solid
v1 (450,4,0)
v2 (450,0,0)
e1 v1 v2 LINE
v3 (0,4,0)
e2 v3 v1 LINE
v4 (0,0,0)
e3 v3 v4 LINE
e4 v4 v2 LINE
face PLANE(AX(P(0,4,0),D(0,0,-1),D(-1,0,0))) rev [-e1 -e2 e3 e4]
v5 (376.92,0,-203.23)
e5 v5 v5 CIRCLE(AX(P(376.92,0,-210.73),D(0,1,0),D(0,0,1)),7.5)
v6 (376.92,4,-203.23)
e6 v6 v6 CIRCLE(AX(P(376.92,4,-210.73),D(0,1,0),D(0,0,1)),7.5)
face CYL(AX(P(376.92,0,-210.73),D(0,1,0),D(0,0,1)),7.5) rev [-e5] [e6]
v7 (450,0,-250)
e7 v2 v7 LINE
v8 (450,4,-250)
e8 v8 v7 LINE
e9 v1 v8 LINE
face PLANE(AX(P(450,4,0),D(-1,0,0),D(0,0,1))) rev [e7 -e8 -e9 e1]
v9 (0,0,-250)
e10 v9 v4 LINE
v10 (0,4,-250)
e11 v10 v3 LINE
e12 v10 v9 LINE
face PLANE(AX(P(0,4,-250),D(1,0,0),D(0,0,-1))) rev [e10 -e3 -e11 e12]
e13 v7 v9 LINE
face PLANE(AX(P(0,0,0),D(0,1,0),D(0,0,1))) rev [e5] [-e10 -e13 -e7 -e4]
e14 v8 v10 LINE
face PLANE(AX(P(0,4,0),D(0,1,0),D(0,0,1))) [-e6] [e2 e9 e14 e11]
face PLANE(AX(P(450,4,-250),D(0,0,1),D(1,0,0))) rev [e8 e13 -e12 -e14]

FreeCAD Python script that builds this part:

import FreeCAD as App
import Part
import Sketcher

V = App.Vector
Q = App.Units.Quantity

doc = App.newDocument("Part")
body = doc.addObject("PartDesign::Body", "Body")

# Sketch on XZ plane
sketch1 = body.newObject("Sketcher::SketchObject", "Sketch")
sketch1.AttachmentSupport = (doc.getObject("XZ_Plane"), [""])
sketch1.MapMode = "FlatFace"
sketch1.addGeometry([
    Part.LineSegment(V(0, -250, 0), V(0, 0, 0)),
    Part.LineSegment(V(0, 0, 0), V(450, 0, 0)),
    Part.LineSegment(V(450, 0, 0), V(450, -250, 0)),
    Part.LineSegment(V(450, -250, 0), V(0, -250, 0)),
], False)
sketch1.addConstraint([
    Sketcher.Constraint("Coincident", 0, 2, 1, 1),
    Sketcher.Constraint("Coincident", 1, 2, 2, 1),
    Sketcher.Constraint("Coincident", 2, 2, 3, 1),
    Sketcher.Constraint("Coincident", 3, 2, 0, 1),
    Sketcher.Constraint("Vertical", 0),
    Sketcher.Constraint("Horizontal", 1),
    Sketcher.Constraint("Vertical", 2),
    Sketcher.Constraint("Horizontal", 3),
    Sketcher.Constraint("Coincident", 0, 2, -1, 1),
    Sketcher.Constraint("DistanceX", 1, 1, 1, 2, Q("450 mm")),
    Sketcher.Constraint("DistanceY", 0, 1, 0, 2, Q("250 mm")),
])
pad1 = body.newObject("PartDesign::Pad", "Pad")
pad1.Profile = sketch1
pad1.Length = 4
pad1.Reversed = True

# Sketch on XZ plane
sketch2 = body.newObject("Sketcher::SketchObject", "Sketch001")
sketch2.AttachmentSupport = (doc.getObject("XZ_Plane"), [""])
sketch2.MapMode = "FlatFace"
sketch2.AttachmentOffset = App.Placement(V(0, 0, -4), App.Rotation())
sketch2.addGeometry(Part.Circle(V(377, -211, 0), V(0, 0, 1), 8), False)
sketch2.addConstraint([
    Sketcher.Constraint("Diameter", 0, Q("15 mm")),
    Sketcher.Constraint("DistanceX", -1, 1, 0, 3, Q("376.92 mm")),
    Sketcher.Constraint("DistanceY", 0, 3, -1, 1, Q("210.73 mm")),
])
pocket1 = body.newObject("PartDesign::Pocket", "Pocket")
pocket1.Profile = sketch2
pocket1.Type = "ThroughAll"
pocket1.Reversed = True

doc.recompute()
